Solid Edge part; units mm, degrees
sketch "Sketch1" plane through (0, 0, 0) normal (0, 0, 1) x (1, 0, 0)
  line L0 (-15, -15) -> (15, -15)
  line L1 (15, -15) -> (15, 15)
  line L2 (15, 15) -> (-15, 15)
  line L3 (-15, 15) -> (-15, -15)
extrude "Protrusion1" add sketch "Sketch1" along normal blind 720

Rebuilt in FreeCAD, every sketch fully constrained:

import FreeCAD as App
import Part
import Sketcher

doc = App.newDocument("Part")
body = doc.addObject("PartDesign::Body", "Body")

# Sketch on XY plane
sketch1 = body.newObject("Sketcher::SketchObject", "Sketch")
sketch1.AttachmentSupport = (doc.getObject("XY_Plane"), [""])
sketch1.MapMode = "FlatFace"
sketch1.addGeometry(Part.LineSegment(App.Vector(-15, 15, 0), App.Vector(-15, -15, 0)), False)
sketch1.addGeometry(Part.LineSegment(App.Vector(-15, -15, 0), App.Vector(15, -15, 0)), False)
sketch1.addGeometry(Part.LineSegment(App.Vector(15, -15, 0), App.Vector(15, 15, 0)), False)
sketch1.addGeometry(Part.LineSegment(App.Vector(15, 15, 0), App.Vector(-15, 15, 0)), False)
sketch1.addConstraint(Sketcher.Constraint("Coincident", 0, 2, 1, 1))
sketch1.addConstraint(Sketcher.Constraint("Coincident", 1, 2, 2, 1))
sketch1.addConstraint(Sketcher.Constraint("Coincident", 2, 2, 3, 1))
sketch1.addConstraint(Sketcher.Constraint("Coincident", 3, 2, 0, 1))
sketch1.addConstraint(Sketcher.Constraint("Vertical", 0))
sketch1.addConstraint(Sketcher.Constraint("Horizontal", 1))
sketch1.addConstraint(Sketcher.Constraint("Vertical", 2))
sketch1.addConstraint(Sketcher.Constraint("Horizontal", 3))
sketch1.addConstraint(Sketcher.Constraint("Symmetric", 0, 2, 2, 2, -1, 1))
sketch1.addConstraint(Sketcher.Constraint("Equal", 3, 0))
sketch1.addConstraint(Sketcher.Constraint("DistanceX", 1, 1, 1, 2, 30.0))
pad1 = body.newObject("PartDesign::Pad", "Pad")
pad1.Profile = sketch1
pad1.Length = 720

doc.recompute()
